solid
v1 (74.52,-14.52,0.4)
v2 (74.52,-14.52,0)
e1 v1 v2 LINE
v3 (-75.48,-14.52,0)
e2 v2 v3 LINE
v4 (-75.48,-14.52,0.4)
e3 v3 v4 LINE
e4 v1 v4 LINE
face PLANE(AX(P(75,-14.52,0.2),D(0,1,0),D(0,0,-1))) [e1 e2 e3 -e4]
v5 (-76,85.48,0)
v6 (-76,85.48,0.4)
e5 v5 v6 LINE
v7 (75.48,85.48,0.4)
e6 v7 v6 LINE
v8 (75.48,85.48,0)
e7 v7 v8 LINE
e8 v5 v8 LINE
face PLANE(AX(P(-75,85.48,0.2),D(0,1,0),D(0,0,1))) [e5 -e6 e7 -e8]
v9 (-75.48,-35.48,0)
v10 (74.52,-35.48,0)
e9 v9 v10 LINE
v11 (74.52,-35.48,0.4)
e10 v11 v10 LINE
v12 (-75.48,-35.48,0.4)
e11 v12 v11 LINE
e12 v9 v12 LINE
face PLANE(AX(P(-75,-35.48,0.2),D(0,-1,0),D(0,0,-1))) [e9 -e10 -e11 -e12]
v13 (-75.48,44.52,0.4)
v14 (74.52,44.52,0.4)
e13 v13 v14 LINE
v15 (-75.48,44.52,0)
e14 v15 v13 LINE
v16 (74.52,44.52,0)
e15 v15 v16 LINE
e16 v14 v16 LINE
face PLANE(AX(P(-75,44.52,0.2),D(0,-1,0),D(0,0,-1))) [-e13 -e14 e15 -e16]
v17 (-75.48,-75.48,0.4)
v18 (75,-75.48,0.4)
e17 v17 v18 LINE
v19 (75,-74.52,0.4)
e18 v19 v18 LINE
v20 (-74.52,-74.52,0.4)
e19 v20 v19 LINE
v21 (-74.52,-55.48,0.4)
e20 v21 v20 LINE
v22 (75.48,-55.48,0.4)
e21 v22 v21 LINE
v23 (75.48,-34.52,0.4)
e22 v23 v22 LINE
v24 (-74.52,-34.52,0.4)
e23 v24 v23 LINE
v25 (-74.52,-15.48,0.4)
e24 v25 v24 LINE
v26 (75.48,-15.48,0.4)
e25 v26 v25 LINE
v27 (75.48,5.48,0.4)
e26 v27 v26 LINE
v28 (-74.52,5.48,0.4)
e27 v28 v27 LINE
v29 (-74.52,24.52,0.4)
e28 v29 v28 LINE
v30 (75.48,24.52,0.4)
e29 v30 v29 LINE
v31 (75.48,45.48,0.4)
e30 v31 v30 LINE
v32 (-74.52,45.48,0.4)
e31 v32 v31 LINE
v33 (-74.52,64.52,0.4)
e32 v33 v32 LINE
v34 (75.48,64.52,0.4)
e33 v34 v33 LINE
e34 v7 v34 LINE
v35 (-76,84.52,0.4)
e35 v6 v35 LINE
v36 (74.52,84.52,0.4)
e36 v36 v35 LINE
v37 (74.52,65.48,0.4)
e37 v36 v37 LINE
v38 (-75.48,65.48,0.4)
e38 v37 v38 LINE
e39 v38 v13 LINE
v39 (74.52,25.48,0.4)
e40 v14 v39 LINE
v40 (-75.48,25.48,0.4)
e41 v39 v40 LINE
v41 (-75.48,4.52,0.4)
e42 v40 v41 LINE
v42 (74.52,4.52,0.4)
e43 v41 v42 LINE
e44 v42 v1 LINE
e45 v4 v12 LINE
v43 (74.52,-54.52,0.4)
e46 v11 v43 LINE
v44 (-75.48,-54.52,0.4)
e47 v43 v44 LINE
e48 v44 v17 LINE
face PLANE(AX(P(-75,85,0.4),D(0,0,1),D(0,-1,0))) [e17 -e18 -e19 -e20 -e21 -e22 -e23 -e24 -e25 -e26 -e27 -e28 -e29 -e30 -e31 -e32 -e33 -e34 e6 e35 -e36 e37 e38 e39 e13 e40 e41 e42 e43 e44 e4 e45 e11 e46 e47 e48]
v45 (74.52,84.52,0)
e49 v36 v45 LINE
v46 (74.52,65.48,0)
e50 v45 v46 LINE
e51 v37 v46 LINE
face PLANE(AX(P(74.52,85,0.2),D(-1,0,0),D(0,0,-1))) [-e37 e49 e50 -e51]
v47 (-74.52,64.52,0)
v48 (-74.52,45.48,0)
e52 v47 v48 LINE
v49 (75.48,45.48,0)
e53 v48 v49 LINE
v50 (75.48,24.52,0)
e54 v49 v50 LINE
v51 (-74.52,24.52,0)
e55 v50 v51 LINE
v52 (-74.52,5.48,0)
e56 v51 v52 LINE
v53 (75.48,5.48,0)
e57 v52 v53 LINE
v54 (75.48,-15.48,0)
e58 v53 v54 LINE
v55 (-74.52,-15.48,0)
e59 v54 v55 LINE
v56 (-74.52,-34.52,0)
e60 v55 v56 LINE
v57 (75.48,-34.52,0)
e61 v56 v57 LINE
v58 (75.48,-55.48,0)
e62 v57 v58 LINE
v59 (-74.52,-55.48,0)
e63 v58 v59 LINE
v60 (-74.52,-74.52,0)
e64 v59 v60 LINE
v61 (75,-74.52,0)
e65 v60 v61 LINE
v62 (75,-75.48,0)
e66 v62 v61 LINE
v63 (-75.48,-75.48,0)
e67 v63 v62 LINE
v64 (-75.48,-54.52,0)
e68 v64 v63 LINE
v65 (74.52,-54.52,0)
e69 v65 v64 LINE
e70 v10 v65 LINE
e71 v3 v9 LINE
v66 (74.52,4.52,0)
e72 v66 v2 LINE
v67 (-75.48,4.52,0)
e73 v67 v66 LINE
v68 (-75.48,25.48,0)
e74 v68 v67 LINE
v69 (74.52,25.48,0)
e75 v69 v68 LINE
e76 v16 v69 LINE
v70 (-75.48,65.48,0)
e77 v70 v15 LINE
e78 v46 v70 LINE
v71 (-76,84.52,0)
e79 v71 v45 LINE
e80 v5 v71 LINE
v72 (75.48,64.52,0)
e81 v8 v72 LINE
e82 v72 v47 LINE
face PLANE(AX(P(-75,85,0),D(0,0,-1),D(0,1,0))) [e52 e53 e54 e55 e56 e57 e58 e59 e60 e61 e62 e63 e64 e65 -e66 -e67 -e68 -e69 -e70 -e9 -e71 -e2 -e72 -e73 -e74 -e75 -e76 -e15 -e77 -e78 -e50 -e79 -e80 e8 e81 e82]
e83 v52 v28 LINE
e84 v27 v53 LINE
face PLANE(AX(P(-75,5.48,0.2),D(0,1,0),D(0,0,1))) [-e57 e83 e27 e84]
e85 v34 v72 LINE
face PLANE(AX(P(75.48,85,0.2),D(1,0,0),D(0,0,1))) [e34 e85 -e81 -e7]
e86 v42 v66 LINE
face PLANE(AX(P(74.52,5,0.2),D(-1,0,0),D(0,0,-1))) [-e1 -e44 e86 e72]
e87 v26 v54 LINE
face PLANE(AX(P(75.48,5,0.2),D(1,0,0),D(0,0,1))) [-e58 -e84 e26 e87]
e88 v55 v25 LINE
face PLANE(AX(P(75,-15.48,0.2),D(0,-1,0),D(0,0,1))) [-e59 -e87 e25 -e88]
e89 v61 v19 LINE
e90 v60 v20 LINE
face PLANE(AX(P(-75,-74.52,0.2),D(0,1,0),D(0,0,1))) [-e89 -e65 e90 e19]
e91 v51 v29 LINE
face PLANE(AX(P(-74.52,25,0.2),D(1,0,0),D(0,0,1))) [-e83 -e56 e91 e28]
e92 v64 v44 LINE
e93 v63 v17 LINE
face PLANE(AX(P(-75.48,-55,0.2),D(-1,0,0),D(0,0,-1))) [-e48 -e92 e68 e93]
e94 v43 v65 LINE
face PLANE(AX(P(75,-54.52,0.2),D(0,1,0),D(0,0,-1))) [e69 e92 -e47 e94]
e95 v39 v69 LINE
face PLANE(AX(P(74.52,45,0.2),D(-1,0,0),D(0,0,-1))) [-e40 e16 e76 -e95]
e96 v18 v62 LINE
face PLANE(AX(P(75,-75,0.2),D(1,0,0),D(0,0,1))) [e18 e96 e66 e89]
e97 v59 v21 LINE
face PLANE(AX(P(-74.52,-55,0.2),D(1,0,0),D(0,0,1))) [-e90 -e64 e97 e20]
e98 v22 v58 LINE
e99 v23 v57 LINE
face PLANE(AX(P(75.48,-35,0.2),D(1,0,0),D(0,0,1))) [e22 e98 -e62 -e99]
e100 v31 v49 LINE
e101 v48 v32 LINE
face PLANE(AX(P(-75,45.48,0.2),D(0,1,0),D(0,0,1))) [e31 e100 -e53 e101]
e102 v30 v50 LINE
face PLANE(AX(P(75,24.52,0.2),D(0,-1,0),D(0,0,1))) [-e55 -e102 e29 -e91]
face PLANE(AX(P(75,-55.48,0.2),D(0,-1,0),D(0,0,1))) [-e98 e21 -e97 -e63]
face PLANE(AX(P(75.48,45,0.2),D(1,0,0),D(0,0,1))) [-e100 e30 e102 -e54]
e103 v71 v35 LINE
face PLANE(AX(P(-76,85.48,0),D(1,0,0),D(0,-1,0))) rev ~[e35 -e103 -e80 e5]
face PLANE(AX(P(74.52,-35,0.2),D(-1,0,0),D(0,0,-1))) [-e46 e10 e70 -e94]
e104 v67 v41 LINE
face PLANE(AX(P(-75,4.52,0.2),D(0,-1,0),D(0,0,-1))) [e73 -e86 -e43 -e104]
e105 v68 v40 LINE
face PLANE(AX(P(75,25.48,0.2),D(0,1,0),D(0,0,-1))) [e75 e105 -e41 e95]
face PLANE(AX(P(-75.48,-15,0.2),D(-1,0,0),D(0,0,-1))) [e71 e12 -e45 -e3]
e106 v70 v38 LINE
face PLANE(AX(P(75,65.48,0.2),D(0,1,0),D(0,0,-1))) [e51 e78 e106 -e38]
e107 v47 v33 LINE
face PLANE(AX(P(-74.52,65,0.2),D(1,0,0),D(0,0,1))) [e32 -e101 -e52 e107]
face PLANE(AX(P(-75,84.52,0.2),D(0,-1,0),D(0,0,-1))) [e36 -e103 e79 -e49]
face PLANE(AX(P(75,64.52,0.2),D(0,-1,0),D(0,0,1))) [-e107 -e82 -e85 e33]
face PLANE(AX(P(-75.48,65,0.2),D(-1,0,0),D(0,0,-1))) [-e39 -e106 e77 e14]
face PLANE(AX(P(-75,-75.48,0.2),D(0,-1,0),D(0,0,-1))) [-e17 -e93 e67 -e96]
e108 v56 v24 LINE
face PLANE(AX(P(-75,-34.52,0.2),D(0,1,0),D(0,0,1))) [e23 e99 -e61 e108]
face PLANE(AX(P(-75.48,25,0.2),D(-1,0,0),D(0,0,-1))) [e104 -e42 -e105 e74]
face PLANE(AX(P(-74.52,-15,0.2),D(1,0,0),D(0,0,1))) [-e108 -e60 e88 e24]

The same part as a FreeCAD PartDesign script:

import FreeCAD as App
import Part
import Sketcher

V = App.Vector


def add_polygon(sketch, points):
    """Adds a closed chain of lines whose ends are joined by coincident constraints."""
    first, n = sketch.GeometryCount, len(points)
    for a, b in zip(points, points[1:] + points[:1]):
        sketch.addGeometry(Part.LineSegment(App.Vector(*a, 0), App.Vector(*b, 0)), False)
    for i in range(n):
        sketch.addConstraint(Sketcher.Constraint("Coincident", first + i, 2, first + (i + 1) % n, 1))

doc = App.newDocument("Part")
body = doc.addObject("PartDesign::Body", "Body")

sketch1 = doc.addObject("Sketcher::SketchObject", "Sketch")
body.addObject(sketch1)
sketch1.AttachmentSupport = (doc.XY_Plane, [""])
sketch1.MapMode = "FlatFace"
add_polygon(sketch1, [(-75, 84.5), (-75, 85.5), (-76, 85.5), (-76, 84.5)])
sketch1.addConstraint(Sketcher.Constraint("Vertical", 0))
sketch1.addConstraint(Sketcher.Constraint("Horizontal", 1))
sketch1.addConstraint(Sketcher.Constraint("Vertical", 2))
sketch1.addConstraint(Sketcher.Constraint("Horizontal", 3))
sketch1.addConstraint(Sketcher.Constraint("DistanceX", 1, 2, 1, 1, 1.0))
sketch1.addConstraint(Sketcher.Constraint("DistanceX", 0, 2, -1, 1, 75.0))
sketch1.addConstraint(Sketcher.Constraint("DistanceY", 0, 1, 0, 2, 0.96))
sketch1.addConstraint(Sketcher.Constraint("DistanceY", -1, 1, 0, 2, 85.48))
pad1 = doc.addObject("PartDesign::Pad", "Pad")
body.addObject(pad1)
pad1.Profile = sketch1
pad1.Length = 0.4

sketch2 = doc.addObject("Sketcher::SketchObject", "Sketch001")
body.addObject(sketch2)
sketch2.AttachmentSupport = (doc.YZ_Plane, [""])
sketch2.MapMode = "FlatFace"
sketch2.AttachmentOffset = App.Placement(V(0, 0, -75), App.Rotation())
add_polygon(sketch2, [(84.52, 0.4), (84.52, 0), (85.48, 0), (85.48, 0.4)])
sketch2.addConstraint(Sketcher.Constraint("Vertical", 0))
sketch2.addConstraint(Sketcher.Constraint("Horizontal", 1))
sketch2.addConstraint(Sketcher.Constraint("Vertical", 2))
sketch2.addConstraint(Sketcher.Constraint("Horizontal", 3))
sketch2.addConstraint(Sketcher.Constraint("PointOnObject", 0, 2, -1))
sketch2.addConstraint(Sketcher.Constraint("DistanceY", 0, 2, 0, 1, 0.4))
sketch2.addConstraint(Sketcher.Constraint("DistanceX", 1, 1, 1, 2, 0.96))
sketch2.addConstraint(Sketcher.Constraint("DistanceX", -1, 1, 0, 2, 84.52))

sketch3 = doc.addObject("Sketcher::SketchObject", "Sketch002")
body.addObject(sketch3)
sketch3.AttachmentSupport = (doc.XY_Plane, [""])
sketch3.MapMode = "FlatFace"
sketch3.addGeometry(Part.LineSegment(V(-75, 85, 0), V(75, 85, 0)), False)
sketch3.addGeometry(Part.LineSegment(V(75, 85, 0), V(75, 65, 0)), False)
sketch3.addGeometry(Part.LineSegment(V(75, 65, 0), V(-75, 65, 0)), False)
sketch3.addGeometry(Part.LineSegment(V(-75, 65, 0), V(-75, 45, 0)), False)
sketch3.addGeometry(Part.LineSegment(V(-75, 45, 0), V(75, 45, 0)), False)
sketch3.addGeometry(Part.LineSegment(V(75, 45, 0), V(75, 25, 0)), False)
sketch3.addGeometry(Part.LineSegment(V(75, 25, 0), V(-75, 25, 0)), False)
sketch3.addGeometry(Part.LineSegment(V(-75, 25, 0), V(-75, 5, 0)), False)
sketch3.addGeometry(Part.LineSegment(V(-75, 5, 0), V(75, 5, 0)), False)
sketch3.addGeometry(Part.LineSegment(V(75, 5, 0), V(75, -15, 0)), False)
sketch3.addGeometry(Part.LineSegment(V(75, -15, 0), V(-75, -15, 0)), False)
sketch3.addGeometry(Part.LineSegment(V(-75, -15, 0), V(-75, -35, 0)), False)
sketch3.addGeometry(Part.LineSegment(V(-75, -35, 0), V(75, -35, 0)), False)
sketch3.addGeometry(Part.LineSegment(V(75, -35, 0), V(75, -55, 0)), False)
sketch3.addGeometry(Part.LineSegment(V(75, -55, 0), V(-75, -55, 0)), False)
sketch3.addGeometry(Part.LineSegment(V(-75, -55, 0), V(-75, -75, 0)), False)
sketch3.addGeometry(Part.LineSegment(V(-75, -75, 0), V(75, -75, 0)), False)
sketch3.addConstraint(Sketcher.Constraint("Coincident", 0, 2, 1, 1))
sketch3.addConstraint(Sketcher.Constraint("Coincident", 1, 2, 2, 1))
sketch3.addConstraint(Sketcher.Constraint("Coincident", 2, 2, 3, 1))
sketch3.addConstraint(Sketcher.Constraint("Coincident", 3, 2, 4, 1))
sketch3.addConstraint(Sketcher.Constraint("Coincident", 4, 2, 5, 1))
sketch3.addConstraint(Sketcher.Constraint("Coincident", 5, 2, 6, 1))
sketch3.addConstraint(Sketcher.Constraint("Coincident", 6, 2, 7, 1))
sketch3.addConstraint(Sketcher.Constraint("Coincident", 7, 2, 8, 1))
sketch3.addConstraint(Sketcher.Constraint("Coincident", 8, 2, 9, 1))
sketch3.addConstraint(Sketcher.Constraint("Coincident", 9, 2, 10, 1))
sketch3.addConstraint(Sketcher.Constraint("Coincident", 10, 2, 11, 1))
sketch3.addConstraint(Sketcher.Constraint("Coincident", 11, 2, 12, 1))
sketch3.addConstraint(Sketcher.Constraint("Coincident", 12, 2, 13, 1))
sketch3.addConstraint(Sketcher.Constraint("Coincident", 13, 2, 14, 1))
sketch3.addConstraint(Sketcher.Constraint("Coincident", 14, 2, 15, 1))
sketch3.addConstraint(Sketcher.Constraint("Coincident", 15, 2, 16, 1))
sketch3.addConstraint(Sketcher.Constraint("Horizontal", 0))
sketch3.addConstraint(Sketcher.Constraint("Vertical", 1))
sketch3.addConstraint(Sketcher.Constraint("Horizontal", 2))
sketch3.addConstraint(Sketcher.Constraint("Vertical", 3))
sketch3.addConstraint(Sketcher.Constraint("Horizontal", 4))
sketch3.addConstraint(Sketcher.Constraint("Vertical", 5))
sketch3.addConstraint(Sketcher.Constraint("Horizontal", 6))
sketch3.addConstraint(Sketcher.Constraint("Vertical", 7))
sketch3.addConstraint(Sketcher.Constraint("Horizontal", 8))
sketch3.addConstraint(Sketcher.Constraint("Vertical", 9))
sketch3.addConstraint(Sketcher.Constraint("Horizontal", 10))
sketch3.addConstraint(Sketcher.Constraint("Vertical", 11))
sketch3.addConstraint(Sketcher.Constraint("Horizontal", 12))
sketch3.addConstraint(Sketcher.Constraint("Vertical", 13))
sketch3.addConstraint(Sketcher.Constraint("Horizontal", 14))
sketch3.addConstraint(Sketcher.Constraint("Vertical", 15))
sketch3.addConstraint(Sketcher.Constraint("Horizontal", 16))
sketch3.addConstraint(Sketcher.Constraint("Vertical", 0, 1, 2, 2))
sketch3.addConstraint(Sketcher.Constraint("Vertical", 1, 2, 4, 2))
sketch3.addConstraint(Sketcher.Constraint("Vertical", 3, 2, 6, 2))
sketch3.addConstraint(Sketcher.Constraint("Vertical", 5, 2, 8, 2))
sketch3.addConstraint(Sketcher.Constraint("Vertical", 7, 2, 10, 2))
sketch3.addConstraint(Sketcher.Constraint("Vertical", 9, 2, 12, 2))
sketch3.addConstraint(Sketcher.Constraint("Vertical", 11, 2, 14, 2))
sketch3.addConstraint(Sketcher.Constraint("Vertical", 13, 2, 16, 2))
sketch3.addConstraint(Sketcher.Constraint("Equal", 1, 3))
sketch3.addConstraint(Sketcher.Constraint("Equal", 3, 5))
sketch3.addConstraint(Sketcher.Constraint("Equal", 5, 7))
sketch3.addConstraint(Sketcher.Constraint("Equal", 7, 9))
sketch3.addConstraint(Sketcher.Constraint("Equal", 9, 11))
sketch3.addConstraint(Sketcher.Constraint("Equal", 11, 13))
sketch3.addConstraint(Sketcher.Constraint("Equal", 13, 15))
sketch3.addConstraint(Sketcher.Constraint("DistanceX", 0, 1, 0, 2, 150.0))
sketch3.addConstraint(Sketcher.Constraint("DistanceY", 1, 2, 1, 1, 20.0))
sketch3.addConstraint(Sketcher.Constraint("DistanceX", 0, 1, -1, 1, 75.0))
sketch3.addConstraint(Sketcher.Constraint("DistanceY", -1, 1, 0, 1, 85.0))
doc.recompute()

additivepipe = doc.addObject("PartDesign::AdditivePipe", "AdditivePipe")
body.addObject(additivepipe)
additivepipe.Profile = sketch2
additivepipe.Spine = (sketch3, ["Edge1", "Edge2", "Edge3", "Edge4", "Edge5", "Edge6", "Edge7", "Edge8", "Edge9", "Edge10", "Edge11", "Edge12", "Edge13", "Edge14", "Edge15", "Edge16", "Edge17"])
additivepipe.Transition = "Right corner"

doc.recompute()
